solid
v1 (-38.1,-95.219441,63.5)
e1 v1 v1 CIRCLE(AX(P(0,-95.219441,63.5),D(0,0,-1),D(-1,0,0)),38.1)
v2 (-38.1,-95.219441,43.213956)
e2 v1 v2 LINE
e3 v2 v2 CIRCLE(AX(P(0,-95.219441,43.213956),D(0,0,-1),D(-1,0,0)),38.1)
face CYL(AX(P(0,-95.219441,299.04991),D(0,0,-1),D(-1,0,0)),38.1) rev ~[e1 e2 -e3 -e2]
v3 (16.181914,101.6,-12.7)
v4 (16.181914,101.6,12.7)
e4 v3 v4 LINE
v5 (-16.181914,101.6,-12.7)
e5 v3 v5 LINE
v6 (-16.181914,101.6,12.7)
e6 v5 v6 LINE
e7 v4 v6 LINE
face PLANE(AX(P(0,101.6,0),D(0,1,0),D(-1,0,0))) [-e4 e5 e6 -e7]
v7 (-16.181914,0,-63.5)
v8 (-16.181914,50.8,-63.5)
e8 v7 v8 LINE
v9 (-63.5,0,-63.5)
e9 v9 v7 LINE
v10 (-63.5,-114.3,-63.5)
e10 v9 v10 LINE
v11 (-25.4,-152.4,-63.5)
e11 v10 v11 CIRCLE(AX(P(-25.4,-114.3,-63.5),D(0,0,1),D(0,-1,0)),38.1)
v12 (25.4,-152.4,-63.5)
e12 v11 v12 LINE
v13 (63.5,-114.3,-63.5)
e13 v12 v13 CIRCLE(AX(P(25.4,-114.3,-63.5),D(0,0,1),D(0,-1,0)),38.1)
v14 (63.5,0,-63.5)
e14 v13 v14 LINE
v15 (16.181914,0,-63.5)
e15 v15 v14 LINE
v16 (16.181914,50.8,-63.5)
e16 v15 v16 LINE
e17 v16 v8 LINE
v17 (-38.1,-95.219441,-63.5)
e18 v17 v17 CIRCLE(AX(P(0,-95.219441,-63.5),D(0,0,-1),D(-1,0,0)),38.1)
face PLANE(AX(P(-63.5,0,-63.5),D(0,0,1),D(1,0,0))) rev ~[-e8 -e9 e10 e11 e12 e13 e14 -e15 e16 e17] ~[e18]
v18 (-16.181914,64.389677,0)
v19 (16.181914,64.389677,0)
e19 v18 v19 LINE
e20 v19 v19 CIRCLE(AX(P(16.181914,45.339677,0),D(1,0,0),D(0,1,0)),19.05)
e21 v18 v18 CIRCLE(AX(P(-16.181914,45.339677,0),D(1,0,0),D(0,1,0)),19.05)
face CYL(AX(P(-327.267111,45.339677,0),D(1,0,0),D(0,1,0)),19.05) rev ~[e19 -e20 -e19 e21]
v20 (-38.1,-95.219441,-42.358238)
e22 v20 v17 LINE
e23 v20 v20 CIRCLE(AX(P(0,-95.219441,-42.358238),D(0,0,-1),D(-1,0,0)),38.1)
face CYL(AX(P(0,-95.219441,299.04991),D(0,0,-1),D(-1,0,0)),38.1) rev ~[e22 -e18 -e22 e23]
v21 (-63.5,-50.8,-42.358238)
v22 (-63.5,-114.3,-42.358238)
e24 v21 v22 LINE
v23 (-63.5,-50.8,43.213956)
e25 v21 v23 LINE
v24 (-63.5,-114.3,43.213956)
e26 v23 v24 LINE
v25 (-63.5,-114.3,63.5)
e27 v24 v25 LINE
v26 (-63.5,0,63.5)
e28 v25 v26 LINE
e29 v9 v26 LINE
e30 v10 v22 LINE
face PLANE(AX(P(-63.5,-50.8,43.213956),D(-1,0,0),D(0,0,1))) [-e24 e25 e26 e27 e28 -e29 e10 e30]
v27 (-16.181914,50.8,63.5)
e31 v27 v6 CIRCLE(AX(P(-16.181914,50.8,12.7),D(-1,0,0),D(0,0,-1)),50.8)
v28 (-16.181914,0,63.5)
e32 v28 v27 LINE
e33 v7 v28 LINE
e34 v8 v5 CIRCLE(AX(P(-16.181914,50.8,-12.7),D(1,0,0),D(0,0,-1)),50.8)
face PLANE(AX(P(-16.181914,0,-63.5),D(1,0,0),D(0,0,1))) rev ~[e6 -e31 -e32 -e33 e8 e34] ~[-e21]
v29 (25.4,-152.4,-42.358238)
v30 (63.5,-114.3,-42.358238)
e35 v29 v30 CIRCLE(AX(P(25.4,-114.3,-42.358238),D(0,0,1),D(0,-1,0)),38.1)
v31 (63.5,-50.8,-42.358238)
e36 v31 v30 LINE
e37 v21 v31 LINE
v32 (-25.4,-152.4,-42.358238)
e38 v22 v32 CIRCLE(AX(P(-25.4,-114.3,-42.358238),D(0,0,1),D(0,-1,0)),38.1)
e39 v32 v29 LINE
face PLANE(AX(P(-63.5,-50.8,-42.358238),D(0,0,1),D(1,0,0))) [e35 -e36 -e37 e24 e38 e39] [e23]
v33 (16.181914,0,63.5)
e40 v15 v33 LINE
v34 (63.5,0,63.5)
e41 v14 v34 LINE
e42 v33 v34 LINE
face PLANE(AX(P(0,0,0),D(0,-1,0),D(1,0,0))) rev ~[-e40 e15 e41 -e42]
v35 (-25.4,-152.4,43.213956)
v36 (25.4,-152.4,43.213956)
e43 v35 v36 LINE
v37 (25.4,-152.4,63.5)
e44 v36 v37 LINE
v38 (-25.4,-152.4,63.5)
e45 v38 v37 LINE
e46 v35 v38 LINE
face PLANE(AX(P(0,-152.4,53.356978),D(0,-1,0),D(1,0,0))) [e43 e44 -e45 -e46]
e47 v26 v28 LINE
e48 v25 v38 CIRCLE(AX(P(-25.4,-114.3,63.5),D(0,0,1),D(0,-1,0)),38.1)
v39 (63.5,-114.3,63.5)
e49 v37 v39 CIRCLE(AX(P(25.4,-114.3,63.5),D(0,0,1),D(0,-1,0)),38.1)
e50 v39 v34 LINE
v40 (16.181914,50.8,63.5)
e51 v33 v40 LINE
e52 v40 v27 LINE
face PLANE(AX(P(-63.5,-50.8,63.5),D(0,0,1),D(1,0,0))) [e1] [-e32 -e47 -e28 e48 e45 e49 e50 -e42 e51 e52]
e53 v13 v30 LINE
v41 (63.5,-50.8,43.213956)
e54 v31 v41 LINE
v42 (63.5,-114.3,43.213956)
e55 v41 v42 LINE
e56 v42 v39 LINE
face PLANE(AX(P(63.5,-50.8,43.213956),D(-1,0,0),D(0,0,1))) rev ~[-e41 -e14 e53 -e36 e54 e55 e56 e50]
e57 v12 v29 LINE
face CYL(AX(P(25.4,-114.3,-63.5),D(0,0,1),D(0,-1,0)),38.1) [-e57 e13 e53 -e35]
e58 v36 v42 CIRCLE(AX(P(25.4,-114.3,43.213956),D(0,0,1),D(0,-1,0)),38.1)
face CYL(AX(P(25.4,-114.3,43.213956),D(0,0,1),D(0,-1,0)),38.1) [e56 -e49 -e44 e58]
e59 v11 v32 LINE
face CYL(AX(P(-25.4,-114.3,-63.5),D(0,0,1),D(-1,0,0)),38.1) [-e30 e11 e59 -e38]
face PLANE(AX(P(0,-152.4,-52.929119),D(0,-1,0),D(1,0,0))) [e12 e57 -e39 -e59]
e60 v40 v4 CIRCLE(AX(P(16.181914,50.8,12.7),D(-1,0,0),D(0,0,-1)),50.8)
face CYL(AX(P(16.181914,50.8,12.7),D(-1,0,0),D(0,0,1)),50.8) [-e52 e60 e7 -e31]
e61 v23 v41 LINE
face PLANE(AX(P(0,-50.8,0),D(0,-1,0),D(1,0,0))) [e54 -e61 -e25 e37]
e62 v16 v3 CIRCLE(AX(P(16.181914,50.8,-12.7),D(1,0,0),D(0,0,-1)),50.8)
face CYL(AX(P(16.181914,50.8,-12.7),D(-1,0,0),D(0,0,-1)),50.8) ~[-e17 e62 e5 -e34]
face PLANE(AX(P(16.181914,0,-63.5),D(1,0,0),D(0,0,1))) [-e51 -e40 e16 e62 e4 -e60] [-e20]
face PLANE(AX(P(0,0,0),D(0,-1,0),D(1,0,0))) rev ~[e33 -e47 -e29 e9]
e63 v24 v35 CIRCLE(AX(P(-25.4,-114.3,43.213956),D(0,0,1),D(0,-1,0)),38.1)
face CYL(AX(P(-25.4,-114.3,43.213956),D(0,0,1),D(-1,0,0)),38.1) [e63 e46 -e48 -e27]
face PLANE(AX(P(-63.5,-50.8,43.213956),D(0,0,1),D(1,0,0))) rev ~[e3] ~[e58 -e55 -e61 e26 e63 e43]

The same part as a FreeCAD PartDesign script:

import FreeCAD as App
import Part
import Sketcher
Q = App.Units.Quantity


def edges_at(feature, points):
    """Names of the edges that pass closest to the given points."""
    edges = feature.Shape.Edges
    near = lambda p: min(range(len(edges)), key=lambda i: edges[i].distToShape(Part.Vertex(*p))[0])
    return sorted({f"Edge{near(p) + 1}" for p in points})

doc = App.newDocument("Part")
body = doc.addObject("PartDesign::Body", "Body")

# Sketch on XZ plane
sketch1 = body.newObject("Sketcher::SketchObject", "Sketch")
sketch1.AttachmentSupport = (doc.getObject("XZ_Plane"), [""])
sketch1.MapMode = "FlatFace"
sketch1.addGeometry([
    Part.LineSegment(App.Vector(-64, 64, 0), App.Vector(-64, -64, 0)),
    Part.LineSegment(App.Vector(-64, -64, 0), App.Vector(64, -64, 0)),
    Part.LineSegment(App.Vector(64, -64, 0), App.Vector(64, 64, 0)),
    Part.LineSegment(App.Vector(64, 64, 0), App.Vector(-64, 64, 0)),
], False)
sketch1.addConstraint([
    Sketcher.Constraint("Coincident", 0, 2, 1, 1),
    Sketcher.Constraint("Coincident", 1, 2, 2, 1),
    Sketcher.Constraint("Coincident", 2, 2, 3, 1),
    Sketcher.Constraint("Coincident", 3, 2, 0, 1),
    Sketcher.Constraint("Vertical", 0),
    Sketcher.Constraint("Horizontal", 1),
    Sketcher.Constraint("Vertical", 2),
    Sketcher.Constraint("Horizontal", 3),
    Sketcher.Constraint("Symmetric", 0, 2, 2, 2, -1, 1),
    Sketcher.Constraint("Equal", 3, 0),
    Sketcher.Constraint("DistanceX", 1, 1, 1, 2, Q("5 in")),
])
pad1 = body.newObject("PartDesign::Pad", "Pad")
pad1.Profile = sketch1
pad1.Length = Q("2 in")

# Sketch on XZ plane
sketch2 = body.newObject("Sketcher::SketchObject", "Sketch001")
sketch2.AttachmentSupport = (doc.getObject("XZ_Plane"), [""])
sketch2.MapMode = "FlatFace"
sketch2.AttachmentOffset = App.Placement(App.Vector(0, 0, 2 * 25.4), App.Rotation())
sketch2.addGeometry([
    Part.LineSegment(App.Vector(-64, 64, 0), App.Vector(-64, 43, 0)),  # 0
    Part.LineSegment(App.Vector(-64, 43, 0), App.Vector(64, 43, 0)),  # 1
    Part.LineSegment(App.Vector(64, 43, 0), App.Vector(64, 64, 0)),  # 2
    Part.LineSegment(App.Vector(64, 64, 0), App.Vector(-64, 64, 0)),  # 3
    Part.LineSegment(App.Vector(-64, -42, 0), App.Vector(-64, -64, 0)),  # 4
    Part.LineSegment(App.Vector(-64, -64, 0), App.Vector(64, -64, 0)),  # 5
    Part.LineSegment(App.Vector(64, -64, 0), App.Vector(64, -42, 0)),  # 6
    Part.LineSegment(App.Vector(64, -42, 0), App.Vector(-64, -42, 0)),  # 7
], False)
sketch2.addConstraint([
    Sketcher.Constraint("Coincident", 0, 2, 1, 1),
    Sketcher.Constraint("Coincident", 1, 2, 2, 1),
    Sketcher.Constraint("Coincident", 2, 2, 3, 1),
    Sketcher.Constraint("Coincident", 3, 2, 0, 1),
    Sketcher.Constraint("Coincident", 4, 2, 5, 1),
    Sketcher.Constraint("Coincident", 5, 2, 6, 1),
    Sketcher.Constraint("Coincident", 6, 2, 7, 1),
    Sketcher.Constraint("Coincident", 7, 2, 4, 1),
    Sketcher.Constraint("Vertical", 0),
    Sketcher.Constraint("Horizontal", 1),
    Sketcher.Constraint("Vertical", 2),
    Sketcher.Constraint("Horizontal", 3),
    Sketcher.Constraint("Vertical", 4),
    Sketcher.Constraint("Horizontal", 5),
    Sketcher.Constraint("Vertical", 6),
    Sketcher.Constraint("Horizontal", 7),
    Sketcher.Constraint("Symmetric", 2, 2, 4, 2, -1, 1),
    Sketcher.Constraint("Vertical", 3, 2, 4, 2),
    Sketcher.Constraint("Vertical", 2, 2, 5, 2),
    Sketcher.Constraint("DistanceX", 1, 1, 1, 2, Q("5 in")),
    Sketcher.Constraint("DistanceY", 4, 2, 3, 2, Q("5 in")),
    Sketcher.Constraint("DistanceY", 4, 2, 4, 1, 21.141762),
    Sketcher.Constraint("DistanceY", 0, 2, 0, 1, 20.286044),
])
pad2 = body.newObject("PartDesign::Pad", "Pad001")
pad2.Profile = sketch2
pad2.Length = Q("4 in")

# Sketch on XY plane
sketch3 = body.newObject("Sketcher::SketchObject", "Sketch002")
sketch3.AttachmentSupport = (doc.getObject("XY_Plane"), [""])
sketch3.MapMode = "FlatFace"
sketch3.AttachmentOffset = App.Placement(App.Vector(0, 0, 2.5 * 25.4), App.Rotation())
sketch3.addGeometry(Part.Circle(App.Vector(0, -95, 0), App.Vector(0, 0, 1), 38), False)
sketch3.addConstraint([
    Sketcher.Constraint("PointOnObject", 0, 3, -2),
    Sketcher.Constraint("Diameter", 0, Q("3 in")),
    Sketcher.Constraint("DistanceY", 0, 3, -1, 1, 95.219441),
])
doc.recompute()
hole = body.newObject("PartDesign::Hole", "Hole")
hole.Profile = sketch3
hole.ThreadType = "None"
hole.Diameter = Q("3 in")
hole.DepthType = "ThroughAll"
doc.recompute()

fillet = body.newObject("PartDesign::Fillet", "Fillet")
fillet.Base = (hole, edges_at(hole, [
    (63.5, -152.4, 53.357),
    (-63.5, -152.4, 53.357),
    (63.5, -152.4, -52.929),
    (-63.5, -152.4, -52.929),
]))
fillet.Radius = Q("1.5 in")

# Sketch on XZ plane
sketch4 = body.newObject("Sketcher::SketchObject", "Sketch003")
sketch4.AttachmentSupport = (doc.getObject("XZ_Plane"), [""])
sketch4.MapMode = "FlatFace"
sketch4.addGeometry([
    Part.LineSegment(App.Vector(16, 64, 0), App.Vector(16, -64, 0)),
    Part.LineSegment(App.Vector(16, -64, 0), App.Vector(-16, -64, 0)),
    Part.LineSegment(App.Vector(-16, -64, 0), App.Vector(-16, 64, 0)),
    Part.LineSegment(App.Vector(-16, 64, 0), App.Vector(16, 64, 0)),
], False)
sketch4.addConstraint([
    Sketcher.Constraint("Coincident", 0, 2, 1, 1),
    Sketcher.Constraint("Coincident", 1, 2, 2, 1),
    Sketcher.Constraint("Coincident", 2, 2, 3, 1),
    Sketcher.Constraint("Coincident", 3, 2, 0, 1),
    Sketcher.Constraint("Vertical", 0),
    Sketcher.Constraint("Horizontal", 1),
    Sketcher.Constraint("Vertical", 2),
    Sketcher.Constraint("Horizontal", 3),
    Sketcher.Constraint("Symmetric", 0, 2, 2, 2, -1, 1),
    Sketcher.Constraint("DistanceY", 0, 2, 0, 1, Q("5 in")),
    Sketcher.Constraint("DistanceX", 1, 2, 1, 1, 32.363828),
])
pad3 = body.newObject("PartDesign::Pad", "Pad002")
pad3.Profile = sketch4
pad3.Length = Q("4 in")
pad3.Reversed = True

# Sketch on YZ plane
sketch5 = body.newObject("Sketcher::SketchObject", "Sketch004")
sketch5.AttachmentSupport = (doc.getObject("YZ_Plane"), [""])
sketch5.MapMode = "FlatFace"
sketch5.AttachmentOffset = App.Placement(App.Vector(0, 0, -16.181914), App.Rotation())
sketch5.addGeometry(Part.Circle(App.Vector(45, 0, 0), App.Vector(0, 0, 1), 19), False)
sketch5.addConstraint([
    Sketcher.Constraint("PointOnObject", 0, 3, -1),
    Sketcher.Constraint("Diameter", 0, Q("1.5 in")),
    Sketcher.Constraint("DistanceX", -1, 1, 0, 3, 45.339677),
])
doc.recompute()
hole2 = body.newObject("PartDesign::Hole", "Hole001")
hole2.Profile = sketch5
hole2.ThreadType = "None"
hole2.Diameter = Q("1.5 in")
hole2.DepthType = "ThroughAll"
hole2.Reversed = True
doc.recompute()

fillet2 = body.newObject("PartDesign::Fillet", "Fillet001")
fillet2.Base = (hole2, edges_at(hole2, [(0, 101.6, 63.5), (0, 101.6, -63.5)]))
fillet2.Radius = Q("2 in")

doc.recompute()
